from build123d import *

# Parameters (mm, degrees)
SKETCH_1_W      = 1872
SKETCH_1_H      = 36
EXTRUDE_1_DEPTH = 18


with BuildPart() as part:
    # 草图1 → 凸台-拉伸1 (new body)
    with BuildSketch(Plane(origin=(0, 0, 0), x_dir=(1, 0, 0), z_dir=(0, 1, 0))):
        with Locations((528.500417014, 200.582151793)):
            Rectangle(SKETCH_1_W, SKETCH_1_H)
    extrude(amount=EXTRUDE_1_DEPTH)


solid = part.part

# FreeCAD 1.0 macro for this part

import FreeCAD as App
import Part
import Sketcher
Q = App.Units.Quantity

doc = App.newDocument("Part")
params = doc.addObject("Spreadsheet::Sheet", "Params")
for row, (alias, value) in enumerate([
    ("sketch1_width", "1872 mm"),
    ("sketch1_height", "36 mm"),
    ("pad1_length", "18 mm"),
], start=1):
    params.set(f"A{row}", alias)
    params.set(f"B{row}", "=" + value)
    params.setAlias(f"B{row}", alias)

body = doc.addObject("PartDesign::Body", "Body")

# Sketch on XZ plane
sketch1 = body.newObject("Sketcher::SketchObject", "Sketch")
sketch1.AttachmentSupport = (doc.getObject("XZ_Plane"), [""])
sketch1.MapMode = "FlatFace"
sketch1.addGeometry(Part.LineSegment(App.Vector(-407, -219, 0), App.Vector(-407, -183, 0)), False)
sketch1.addGeometry(Part.LineSegment(App.Vector(-407, -183, 0), App.Vector(1465, -183, 0)), False)
sketch1.addGeometry(Part.LineSegment(App.Vector(1465, -183, 0), App.Vector(1465, -219, 0)), False)
sketch1.addGeometry(Part.LineSegment(App.Vector(1465, -219, 0), App.Vector(-407, -219, 0)), False)
sketch1.addConstraint(Sketcher.Constraint("Coincident", 0, 2, 1, 1))
sketch1.addConstraint(Sketcher.Constraint("Coincident", 1, 2, 2, 1))
sketch1.addConstraint(Sketcher.Constraint("Coincident", 2, 2, 3, 1))
sketch1.addConstraint(Sketcher.Constraint("Coincident", 3, 2, 0, 1))
sketch1.addConstraint(Sketcher.Constraint("Vertical", 0))
sketch1.addConstraint(Sketcher.Constraint("Horizontal", 1))
sketch1.addConstraint(Sketcher.Constraint("Vertical", 2))
sketch1.addConstraint(Sketcher.Constraint("Horizontal", 3))
sketch1.addConstraint(Sketcher.Constraint("DistanceX", 1, 1, 1, 2, Q("1872 mm")))
sketch1.addConstraint(Sketcher.Constraint("DistanceY", 0, 1, 0, 2, Q("36 mm")))
sketch1.addConstraint(Sketcher.Constraint("DistanceY", 0, 2, -1, 1, Q("182.582152 mm")))
sketch1.addConstraint(Sketcher.Constraint("DistanceX", 0, 2, -1, 1, Q("407.499583 mm")))
sketch1.setExpression("Constraints[8]", "Params.sketch1_width")
sketch1.setExpression("Constraints[9]", "Params.sketch1_height")
pad1 = body.newObject("PartDesign::Pad", "Pad")
pad1.Profile = sketch1
pad1.setExpression("Length", "Params.pad1_length")
pad1.Reversed = True

doc.recompute()
